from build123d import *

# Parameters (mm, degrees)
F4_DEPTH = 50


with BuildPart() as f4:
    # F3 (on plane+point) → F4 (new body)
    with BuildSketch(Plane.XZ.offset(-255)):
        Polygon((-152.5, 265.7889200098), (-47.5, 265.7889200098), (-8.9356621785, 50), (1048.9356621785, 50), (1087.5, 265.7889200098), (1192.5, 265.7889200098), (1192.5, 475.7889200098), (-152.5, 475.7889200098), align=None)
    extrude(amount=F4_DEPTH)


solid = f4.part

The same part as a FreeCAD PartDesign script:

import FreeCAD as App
import Part
import Sketcher
Q = App.Units.Quantity

doc = App.newDocument("Part")
body = doc.addObject("PartDesign::Body", "Body")

# Sketch on XZ plane
sketch1 = body.newObject("Sketcher::SketchObject", "Sketch")
sketch1.AttachmentSupport = (doc.getObject("XZ_Plane"), [""])
sketch1.MapMode = "FlatFace"
sketch1.AttachmentOffset = App.Placement(App.Vector(0, 0, -255), App.Rotation())
sketch1.addGeometry([
    Part.LineSegment(App.Vector(-152, 266, 0), App.Vector(-48, 266, 0)),  # 0
    Part.LineSegment(App.Vector(-48, 266, 0), App.Vector(-9, 50, 0)),  # 1
    Part.LineSegment(App.Vector(-9, 50, 0), App.Vector(1049, 50, 0)),  # 2
    Part.LineSegment(App.Vector(1049, 50, 0), App.Vector(1088, 266, 0)),  # 3
    Part.LineSegment(App.Vector(1088, 266, 0), App.Vector(1192, 266, 0)),  # 4
    Part.LineSegment(App.Vector(1192, 266, 0), App.Vector(1192, 476, 0)),  # 5
    Part.LineSegment(App.Vector(1192, 476, 0), App.Vector(-152, 476, 0)),  # 6
    Part.LineSegment(App.Vector(-152, 476, 0), App.Vector(-152, 266, 0)),  # 7
], False)
sketch1.addConstraint([
    Sketcher.Constraint("Coincident", 0, 2, 1, 1),
    Sketcher.Constraint("Coincident", 1, 2, 2, 1),
    Sketcher.Constraint("Coincident", 2, 2, 3, 1),
    Sketcher.Constraint("Coincident", 3, 2, 4, 1),
    Sketcher.Constraint("Coincident", 4, 2, 5, 1),
    Sketcher.Constraint("Coincident", 5, 2, 6, 1),
    Sketcher.Constraint("Coincident", 6, 2, 7, 1),
    Sketcher.Constraint("Coincident", 7, 2, 0, 1),
    Sketcher.Constraint("Horizontal", 0),
    Sketcher.Constraint("Horizontal", 2),
    Sketcher.Constraint("Horizontal", 4),
    Sketcher.Constraint("Vertical", 5),
    Sketcher.Constraint("Horizontal", 6),
    Sketcher.Constraint("Vertical", 7),
    Sketcher.Constraint("Horizontal", 0, 2, 3, 2),
    Sketcher.Constraint("Equal", 0, 4),
    Sketcher.Constraint("Equal", 1, 3),
    Sketcher.Constraint("DistanceX", 0, 1, 0, 2, Q("105 mm")),
    Sketcher.Constraint("DistanceX", 6, 2, 6, 1, Q("1345 mm")),
    Sketcher.Constraint("DistanceY", 5, 1, 5, 2, Q("210 mm")),
    Sketcher.Constraint("DistanceY", -1, 1, 1, 2, Q("50 mm")),
    Sketcher.Constraint("DistanceX", 0, 2, -1, 1, Q("47.5 mm")),
    Sketcher.Constraint("DistanceX", 2, 1, 2, 2, Q("1057.871324 mm")),
    Sketcher.Constraint("DistanceY", -1, 1, 0, 2, Q("265.78892 mm")),
])
pad1 = body.newObject("PartDesign::Pad", "Pad")
pad1.Profile = sketch1
pad1.Length = 50

doc.recompute()
